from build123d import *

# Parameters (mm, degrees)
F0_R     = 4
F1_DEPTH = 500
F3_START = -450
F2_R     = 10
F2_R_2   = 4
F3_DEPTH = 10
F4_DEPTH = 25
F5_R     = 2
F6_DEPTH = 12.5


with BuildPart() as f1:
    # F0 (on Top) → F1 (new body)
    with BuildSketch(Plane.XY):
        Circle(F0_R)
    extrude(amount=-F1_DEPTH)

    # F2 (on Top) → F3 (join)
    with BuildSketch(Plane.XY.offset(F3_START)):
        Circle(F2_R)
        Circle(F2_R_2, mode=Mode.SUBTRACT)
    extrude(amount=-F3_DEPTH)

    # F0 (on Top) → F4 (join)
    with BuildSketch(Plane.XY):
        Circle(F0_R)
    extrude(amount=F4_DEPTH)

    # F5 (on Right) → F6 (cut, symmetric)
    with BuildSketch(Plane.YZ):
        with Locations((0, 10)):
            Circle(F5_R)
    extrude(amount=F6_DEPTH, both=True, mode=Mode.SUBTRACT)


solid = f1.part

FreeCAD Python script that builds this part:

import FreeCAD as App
import Part
import Sketcher

V = App.Vector

doc = App.newDocument("Part")
body = doc.addObject("PartDesign::Body", "Body")

sketch1 = doc.addObject("Sketcher::SketchObject", "Sketch")
body.addObject(sketch1)
sketch1.AttachmentSupport = (doc.XY_Plane, [""])
sketch1.MapMode = "FlatFace"
sketch1.addGeometry(Part.Circle(V(0, 0, 0), V(0, 0, 1), 4), False)
sketch1.addConstraint(Sketcher.Constraint("Coincident", 0, 3, -1, 1))
sketch1.addConstraint(Sketcher.Constraint("Diameter", 0, 8.0))
pad1 = doc.addObject("PartDesign::Pad", "Pad")
body.addObject(pad1)
pad1.Profile = sketch1
pad1.Length = 500
pad1.Reversed = True

sketch2 = doc.addObject("Sketcher::SketchObject", "Sketch001")
body.addObject(sketch2)
sketch2.AttachmentSupport = (doc.XY_Plane, [""])
sketch2.MapMode = "FlatFace"
sketch2.AttachmentOffset = App.Placement(V(0, 0, -450), App.Rotation())
sketch2.addGeometry(Part.Circle(V(0, 0, 0), V(0, 0, 1), 10), False)
sketch2.addGeometry(Part.Circle(V(0, 0, 0), V(0, 0, 1), 4), False)
sketch2.addConstraint(Sketcher.Constraint("Coincident", 0, 3, -1, 1))
sketch2.addConstraint(Sketcher.Constraint("Coincident", 1, 3, -1, 1))
sketch2.addConstraint(Sketcher.Constraint("Diameter", 0, 20.0))
sketch2.addConstraint(Sketcher.Constraint("Diameter", 1, 8.0))
pad2 = doc.addObject("PartDesign::Pad", "Pad001")
body.addObject(pad2)
pad2.Profile = sketch2
pad2.Length = 10
pad2.Reversed = True

sketch3 = doc.addObject("Sketcher::SketchObject", "Sketch002")
body.addObject(sketch3)
sketch3.AttachmentSupport = (doc.XY_Plane, [""])
sketch3.MapMode = "FlatFace"
sketch3.addGeometry(Part.Circle(V(0, 0, 0), V(0, 0, 1), 4), False)
sketch3.addConstraint(Sketcher.Constraint("Coincident", 0, 3, -1, 1))
sketch3.addConstraint(Sketcher.Constraint("Diameter", 0, 8.0))
pad3 = doc.addObject("PartDesign::Pad", "Pad002")
body.addObject(pad3)
pad3.Profile = sketch3
pad3.Length = 25

sketch4 = doc.addObject("Sketcher::SketchObject", "Sketch003")
body.addObject(sketch4)
sketch4.AttachmentSupport = (doc.YZ_Plane, [""])
sketch4.MapMode = "FlatFace"
sketch4.addGeometry(Part.Circle(V(0, 10, 0), V(0, 0, 1), 2), False)
sketch4.addConstraint(Sketcher.Constraint("PointOnObject", 0, 3, -2))
sketch4.addConstraint(Sketcher.Constraint("Diameter", 0, 4.0))
sketch4.addConstraint(Sketcher.Constraint("DistanceY", -1, 1, 0, 3, 10.0))
pocket1 = doc.addObject("PartDesign::Pocket", "Pocket")
body.addObject(pocket1)
pocket1.Profile = sketch4
pocket1.Length = 25
pocket1.Midplane = True

doc.recompute()
